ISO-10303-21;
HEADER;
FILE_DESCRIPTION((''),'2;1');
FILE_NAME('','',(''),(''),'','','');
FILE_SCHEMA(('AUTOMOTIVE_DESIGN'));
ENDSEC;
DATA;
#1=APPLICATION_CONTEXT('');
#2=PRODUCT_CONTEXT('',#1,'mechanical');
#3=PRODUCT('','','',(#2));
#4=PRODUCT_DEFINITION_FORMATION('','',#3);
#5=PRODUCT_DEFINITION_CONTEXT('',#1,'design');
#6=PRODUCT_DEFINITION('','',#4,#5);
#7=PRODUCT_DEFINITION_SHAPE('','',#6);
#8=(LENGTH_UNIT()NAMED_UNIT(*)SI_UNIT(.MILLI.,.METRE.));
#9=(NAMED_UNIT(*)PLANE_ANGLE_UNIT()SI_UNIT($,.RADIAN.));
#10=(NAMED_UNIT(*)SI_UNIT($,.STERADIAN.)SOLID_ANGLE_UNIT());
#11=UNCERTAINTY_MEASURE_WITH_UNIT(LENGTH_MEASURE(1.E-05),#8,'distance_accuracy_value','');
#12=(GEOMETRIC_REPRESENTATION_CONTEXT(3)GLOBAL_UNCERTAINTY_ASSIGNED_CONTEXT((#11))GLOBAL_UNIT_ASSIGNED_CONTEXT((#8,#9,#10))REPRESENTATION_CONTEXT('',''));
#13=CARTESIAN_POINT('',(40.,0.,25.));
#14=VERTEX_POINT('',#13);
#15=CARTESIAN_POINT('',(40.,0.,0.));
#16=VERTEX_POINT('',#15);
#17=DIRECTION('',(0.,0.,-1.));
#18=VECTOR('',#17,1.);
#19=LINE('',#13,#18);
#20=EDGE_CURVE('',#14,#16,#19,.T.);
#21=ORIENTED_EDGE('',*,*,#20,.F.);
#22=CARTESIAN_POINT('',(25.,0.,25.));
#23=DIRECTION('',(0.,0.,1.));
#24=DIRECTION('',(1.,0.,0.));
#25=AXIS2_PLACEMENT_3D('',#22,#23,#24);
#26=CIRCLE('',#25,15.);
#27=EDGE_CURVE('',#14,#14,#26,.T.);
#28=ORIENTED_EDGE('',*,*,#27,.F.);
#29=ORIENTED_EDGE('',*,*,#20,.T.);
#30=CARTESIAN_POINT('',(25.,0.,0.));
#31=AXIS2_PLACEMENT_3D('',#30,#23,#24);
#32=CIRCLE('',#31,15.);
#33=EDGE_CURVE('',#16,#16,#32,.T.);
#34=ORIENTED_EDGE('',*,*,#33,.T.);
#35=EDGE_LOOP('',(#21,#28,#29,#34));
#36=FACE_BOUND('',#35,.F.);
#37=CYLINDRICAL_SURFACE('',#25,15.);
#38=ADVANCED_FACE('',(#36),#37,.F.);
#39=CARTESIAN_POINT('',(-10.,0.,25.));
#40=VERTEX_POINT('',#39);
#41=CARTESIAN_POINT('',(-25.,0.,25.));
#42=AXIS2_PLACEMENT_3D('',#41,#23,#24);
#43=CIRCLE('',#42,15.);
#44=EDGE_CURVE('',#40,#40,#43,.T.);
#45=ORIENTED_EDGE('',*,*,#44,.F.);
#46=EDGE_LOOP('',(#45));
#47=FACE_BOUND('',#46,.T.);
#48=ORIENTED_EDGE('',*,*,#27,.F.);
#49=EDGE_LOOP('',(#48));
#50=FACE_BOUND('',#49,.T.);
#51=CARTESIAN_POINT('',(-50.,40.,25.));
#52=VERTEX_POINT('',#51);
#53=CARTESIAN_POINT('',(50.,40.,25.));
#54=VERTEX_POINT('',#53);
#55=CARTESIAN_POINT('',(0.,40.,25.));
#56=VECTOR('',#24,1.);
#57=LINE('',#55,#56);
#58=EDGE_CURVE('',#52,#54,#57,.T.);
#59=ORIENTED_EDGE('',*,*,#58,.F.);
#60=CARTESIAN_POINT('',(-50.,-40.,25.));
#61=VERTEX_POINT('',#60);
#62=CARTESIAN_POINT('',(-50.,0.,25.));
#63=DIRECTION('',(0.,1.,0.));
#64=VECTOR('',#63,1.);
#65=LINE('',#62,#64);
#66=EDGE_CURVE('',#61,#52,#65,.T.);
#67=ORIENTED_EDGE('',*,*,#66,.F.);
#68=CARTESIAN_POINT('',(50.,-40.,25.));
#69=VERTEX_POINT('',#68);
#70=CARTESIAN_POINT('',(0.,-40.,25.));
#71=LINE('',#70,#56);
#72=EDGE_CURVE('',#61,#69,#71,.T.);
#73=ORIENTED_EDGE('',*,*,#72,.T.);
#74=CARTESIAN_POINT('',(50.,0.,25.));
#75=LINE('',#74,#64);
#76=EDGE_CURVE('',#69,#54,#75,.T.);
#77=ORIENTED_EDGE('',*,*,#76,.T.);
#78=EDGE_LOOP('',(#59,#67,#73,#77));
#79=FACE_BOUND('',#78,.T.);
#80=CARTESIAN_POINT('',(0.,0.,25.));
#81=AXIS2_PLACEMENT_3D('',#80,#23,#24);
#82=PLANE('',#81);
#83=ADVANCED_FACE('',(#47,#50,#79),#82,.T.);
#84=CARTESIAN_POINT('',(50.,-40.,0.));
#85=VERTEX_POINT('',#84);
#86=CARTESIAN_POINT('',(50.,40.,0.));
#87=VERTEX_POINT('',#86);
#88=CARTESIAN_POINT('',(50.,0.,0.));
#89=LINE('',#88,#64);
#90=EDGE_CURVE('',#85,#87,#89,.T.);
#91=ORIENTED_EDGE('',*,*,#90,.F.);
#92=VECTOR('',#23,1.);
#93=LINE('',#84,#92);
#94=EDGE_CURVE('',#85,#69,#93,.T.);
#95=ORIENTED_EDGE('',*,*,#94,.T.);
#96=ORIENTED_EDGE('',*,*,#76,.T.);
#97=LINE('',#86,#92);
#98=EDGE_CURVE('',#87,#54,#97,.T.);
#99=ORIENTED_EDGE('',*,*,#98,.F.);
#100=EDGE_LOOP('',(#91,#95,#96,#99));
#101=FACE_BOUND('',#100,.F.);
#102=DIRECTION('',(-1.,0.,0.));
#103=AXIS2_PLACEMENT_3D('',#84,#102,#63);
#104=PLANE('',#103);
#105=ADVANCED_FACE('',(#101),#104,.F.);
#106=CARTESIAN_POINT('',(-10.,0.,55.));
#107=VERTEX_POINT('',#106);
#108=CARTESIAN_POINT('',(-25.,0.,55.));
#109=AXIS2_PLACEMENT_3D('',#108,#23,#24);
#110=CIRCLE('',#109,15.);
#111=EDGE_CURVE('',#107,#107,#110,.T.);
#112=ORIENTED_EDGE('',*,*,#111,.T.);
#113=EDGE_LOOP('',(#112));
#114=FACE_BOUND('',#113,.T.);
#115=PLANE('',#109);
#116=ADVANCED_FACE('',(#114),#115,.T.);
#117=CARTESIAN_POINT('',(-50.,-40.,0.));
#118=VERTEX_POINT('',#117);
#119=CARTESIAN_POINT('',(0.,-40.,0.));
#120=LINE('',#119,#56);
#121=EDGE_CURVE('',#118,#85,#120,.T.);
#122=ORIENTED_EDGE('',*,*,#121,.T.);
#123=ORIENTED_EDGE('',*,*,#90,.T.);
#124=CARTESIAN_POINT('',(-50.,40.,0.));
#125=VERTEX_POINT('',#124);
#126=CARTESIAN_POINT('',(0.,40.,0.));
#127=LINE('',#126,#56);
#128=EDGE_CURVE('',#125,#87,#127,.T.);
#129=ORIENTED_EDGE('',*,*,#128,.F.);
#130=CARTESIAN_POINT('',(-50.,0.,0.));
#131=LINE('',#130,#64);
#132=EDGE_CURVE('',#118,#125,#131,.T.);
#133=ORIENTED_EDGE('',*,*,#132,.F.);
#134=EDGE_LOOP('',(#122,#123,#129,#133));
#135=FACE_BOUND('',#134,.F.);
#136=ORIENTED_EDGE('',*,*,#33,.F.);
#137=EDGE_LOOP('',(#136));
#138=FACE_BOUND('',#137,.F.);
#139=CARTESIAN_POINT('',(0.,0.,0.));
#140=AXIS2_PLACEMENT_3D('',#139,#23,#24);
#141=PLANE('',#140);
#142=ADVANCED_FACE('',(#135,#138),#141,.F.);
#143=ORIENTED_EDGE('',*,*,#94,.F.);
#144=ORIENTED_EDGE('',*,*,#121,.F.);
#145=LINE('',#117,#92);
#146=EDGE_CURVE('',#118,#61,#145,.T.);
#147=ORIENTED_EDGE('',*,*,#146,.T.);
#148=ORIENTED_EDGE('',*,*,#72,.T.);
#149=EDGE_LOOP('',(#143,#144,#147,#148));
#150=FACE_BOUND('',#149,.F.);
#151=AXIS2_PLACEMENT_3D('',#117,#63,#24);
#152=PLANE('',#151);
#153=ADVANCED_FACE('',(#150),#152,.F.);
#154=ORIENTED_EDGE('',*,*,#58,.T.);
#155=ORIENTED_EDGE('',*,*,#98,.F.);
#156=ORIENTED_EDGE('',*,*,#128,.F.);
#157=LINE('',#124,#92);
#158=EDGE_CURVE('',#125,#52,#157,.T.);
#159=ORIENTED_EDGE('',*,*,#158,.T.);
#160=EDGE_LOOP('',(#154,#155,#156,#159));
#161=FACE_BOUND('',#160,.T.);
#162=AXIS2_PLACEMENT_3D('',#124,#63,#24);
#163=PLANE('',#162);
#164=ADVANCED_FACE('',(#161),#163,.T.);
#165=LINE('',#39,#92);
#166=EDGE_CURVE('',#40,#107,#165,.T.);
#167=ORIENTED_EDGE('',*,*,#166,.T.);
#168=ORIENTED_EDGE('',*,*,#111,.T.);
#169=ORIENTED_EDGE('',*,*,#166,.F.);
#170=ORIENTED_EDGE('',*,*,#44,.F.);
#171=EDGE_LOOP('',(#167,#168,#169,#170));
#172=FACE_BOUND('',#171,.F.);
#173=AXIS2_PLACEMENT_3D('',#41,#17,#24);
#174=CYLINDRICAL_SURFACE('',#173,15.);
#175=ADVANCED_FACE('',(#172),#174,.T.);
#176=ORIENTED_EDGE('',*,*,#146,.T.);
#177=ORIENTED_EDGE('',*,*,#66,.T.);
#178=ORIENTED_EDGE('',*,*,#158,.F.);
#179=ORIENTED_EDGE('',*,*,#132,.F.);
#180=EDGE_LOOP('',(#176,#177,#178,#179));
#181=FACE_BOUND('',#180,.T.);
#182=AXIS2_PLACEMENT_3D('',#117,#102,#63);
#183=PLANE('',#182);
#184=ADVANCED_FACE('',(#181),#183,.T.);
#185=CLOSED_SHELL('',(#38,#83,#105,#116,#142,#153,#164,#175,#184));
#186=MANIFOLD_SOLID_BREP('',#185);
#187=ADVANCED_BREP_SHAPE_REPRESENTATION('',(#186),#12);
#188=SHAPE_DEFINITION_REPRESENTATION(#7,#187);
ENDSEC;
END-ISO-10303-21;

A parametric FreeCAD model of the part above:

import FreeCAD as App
import Part
import Sketcher
Q = App.Units.Quantity

doc = App.newDocument("Part")
body = doc.addObject("PartDesign::Body", "Body")

# Sketch on XY plane
sketch1 = body.newObject("Sketcher::SketchObject", "Sketch")
sketch1.AttachmentSupport = (doc.getObject("XY_Plane"), [""])
sketch1.MapMode = "FlatFace"
sketch1.addGeometry(Part.LineSegment(App.Vector(-50, 40, 0), App.Vector(-50, -40, 0)), False)
sketch1.addGeometry(Part.LineSegment(App.Vector(-50, -40, 0), App.Vector(50, -40, 0)), False)
sketch1.addGeometry(Part.LineSegment(App.Vector(50, -40, 0), App.Vector(50, 40, 0)), False)
sketch1.addGeometry(Part.LineSegment(App.Vector(50, 40, 0), App.Vector(-50, 40, 0)), False)
sketch1.addConstraint(Sketcher.Constraint("Coincident", 0, 2, 1, 1))
sketch1.addConstraint(Sketcher.Constraint("Coincident", 1, 2, 2, 1))
sketch1.addConstraint(Sketcher.Constraint("Coincident", 2, 2, 3, 1))
sketch1.addConstraint(Sketcher.Constraint("Coincident", 3, 2, 0, 1))
sketch1.addConstraint(Sketcher.Constraint("Vertical", 0))
sketch1.addConstraint(Sketcher.Constraint("Horizontal", 1))
sketch1.addConstraint(Sketcher.Constraint("Vertical", 2))
sketch1.addConstraint(Sketcher.Constraint("Horizontal", 3))
sketch1.addConstraint(Sketcher.Constraint("Symmetric", 0, 2, 2, 2, -1, 1))
sketch1.addConstraint(Sketcher.Constraint("DistanceX", 1, 1, 1, 2, Q("100 mm")))
sketch1.addConstraint(Sketcher.Constraint("DistanceY", 0, 2, 0, 1, Q("80 mm")))
pad1 = body.newObject("PartDesign::Pad", "Pad")
pad1.Profile = sketch1
pad1.Length = 25

# Sketch on XY plane
sketch2 = body.newObject("Sketcher::SketchObject", "Sketch001")
sketch2.AttachmentSupport = (doc.getObject("XY_Plane"), [""])
sketch2.MapMode = "FlatFace"
sketch2.AttachmentOffset = App.Placement(App.Vector(0, 0, 25), App.Rotation())
sketch2.addGeometry(Part.Circle(App.Vector(-25, 0, 0), App.Vector(0, 0, 1), 15), False)
sketch2.addConstraint(Sketcher.Constraint("PointOnObject", 0, 3, -1))
sketch2.addConstraint(Sketcher.Constraint("Diameter", 0, Q("30 mm")))
sketch2.addConstraint(Sketcher.Constraint("DistanceX", 0, 3, -1, 1, Q("25 mm")))
pad2 = body.newObject("PartDesign::Pad", "Pad001")
pad2.Profile = sketch2
pad2.Length = 30

# Sketch on XY plane
sketch3 = body.newObject("Sketcher::SketchObject", "Sketch002")
sketch3.AttachmentSupport = (doc.getObject("XY_Plane"), [""])
sketch3.MapMode = "FlatFace"
sketch3.AttachmentOffset = App.Placement(App.Vector(0, 0, 25), App.Rotation())
sketch3.addGeometry(Part.Circle(App.Vector(25, 0, 0), App.Vector(0, 0, 1), 15), False)
sketch3.addConstraint(Sketcher.Constraint("PointOnObject", 0, 3, -1))
sketch3.addConstraint(Sketcher.Constraint("Diameter", 0, Q("30 mm")))
sketch3.addConstraint(Sketcher.Constraint("DistanceX", -1, 1, 0, 3, Q("25 mm")))
pocket1 = body.newObject("PartDesign::Pocket", "Pocket")
pocket1.Profile = sketch3
pocket1.Length = 25

doc.recompute()
